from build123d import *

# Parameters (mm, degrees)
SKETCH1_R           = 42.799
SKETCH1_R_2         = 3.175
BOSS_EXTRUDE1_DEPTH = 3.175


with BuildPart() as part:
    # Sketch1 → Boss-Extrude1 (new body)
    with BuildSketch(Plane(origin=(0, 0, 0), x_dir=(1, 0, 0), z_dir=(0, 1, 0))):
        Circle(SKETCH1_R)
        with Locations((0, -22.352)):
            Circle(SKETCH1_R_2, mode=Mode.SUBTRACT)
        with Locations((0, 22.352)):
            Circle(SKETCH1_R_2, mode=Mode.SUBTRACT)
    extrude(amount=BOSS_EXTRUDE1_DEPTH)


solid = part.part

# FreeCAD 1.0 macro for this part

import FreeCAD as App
import Part
import Sketcher
Q = App.Units.Quantity

doc = App.newDocument("Part")
body = doc.addObject("PartDesign::Body", "Body")

sketch1 = body.newObject("Sketcher::SketchObject", "Sketch")
sketch1.AttachmentSupport = (doc.getObject("XZ_Plane"), [""])
sketch1.MapMode = "FlatFace"
sketch1.addGeometry([
    Part.Circle(App.Vector(0, 0, 0), App.Vector(0, 0, 1), 42.8),
    Part.Circle(App.Vector(0, 22.4, 0), App.Vector(0, 0, 1), 3.2),
    Part.Circle(App.Vector(0, -22.4, 0), App.Vector(0, 0, 1), 3.2),
], False)
sketch1.addConstraint([
    Sketcher.Constraint("Coincident", 0, 3, -1, 1),
    Sketcher.Constraint("Equal", 1, 2),
    Sketcher.Constraint("Symmetric", 1, 3, 2, 3, -1, 1),
    Sketcher.Constraint("PointOnObject", 1, 3, -2),
    Sketcher.Constraint("Diameter", 0, Q("3.37 in")),
    Sketcher.Constraint("Diameter", 1, Q("0.25 in")),
    Sketcher.Constraint("DistanceY", -1, 1, 1, 3, Q("0.88 in")),
])
pad1 = body.newObject("PartDesign::Pad", "Pad")
pad1.Profile = sketch1
pad1.Length = Q("0.125 in")
pad1.Reversed = True

doc.recompute()
